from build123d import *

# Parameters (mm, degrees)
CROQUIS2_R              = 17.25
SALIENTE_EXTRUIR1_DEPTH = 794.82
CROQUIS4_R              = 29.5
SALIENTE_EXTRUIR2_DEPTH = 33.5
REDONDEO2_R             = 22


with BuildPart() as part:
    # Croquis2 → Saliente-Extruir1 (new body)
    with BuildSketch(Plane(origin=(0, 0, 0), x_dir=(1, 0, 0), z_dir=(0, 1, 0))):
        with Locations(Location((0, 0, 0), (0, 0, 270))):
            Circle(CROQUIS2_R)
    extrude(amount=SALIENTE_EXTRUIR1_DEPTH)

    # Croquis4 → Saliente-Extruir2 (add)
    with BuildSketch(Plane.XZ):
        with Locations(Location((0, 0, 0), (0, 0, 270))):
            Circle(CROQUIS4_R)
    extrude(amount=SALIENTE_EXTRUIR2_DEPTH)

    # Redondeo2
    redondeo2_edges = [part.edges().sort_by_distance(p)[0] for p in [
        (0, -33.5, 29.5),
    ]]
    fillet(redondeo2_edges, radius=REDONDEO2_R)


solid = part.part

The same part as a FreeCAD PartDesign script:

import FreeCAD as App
import Part
import Sketcher


def edges_at(feature, points):
    """Names of the edges that pass closest to the given points."""
    edges = feature.Shape.Edges
    near = lambda p: min(range(len(edges)), key=lambda i: edges[i].distToShape(Part.Vertex(*p))[0])
    return sorted({f"Edge{near(p) + 1}" for p in points})

doc = App.newDocument("Part")
body = doc.addObject("PartDesign::Body", "Body")

sketch1 = body.newObject("Sketcher::SketchObject", "Sketch")
sketch1.AttachmentSupport = (doc.getObject("XZ_Plane"), [""])
sketch1.MapMode = "FlatFace"
sketch1.addGeometry(Part.Circle(App.Vector(0, 0, 0), App.Vector(0, 0, 1), 17), False)
sketch1.addConstraint([
    Sketcher.Constraint("Coincident", 0, 3, -1, 1),
    Sketcher.Constraint("Diameter", 0, 34.5),
])
pad1 = body.newObject("PartDesign::Pad", "Pad")
pad1.Profile = sketch1
pad1.Length = 794.82
pad1.Reversed = True

sketch2 = body.newObject("Sketcher::SketchObject", "Sketch001")
sketch2.AttachmentSupport = (doc.getObject("XZ_Plane"), [""])
sketch2.MapMode = "FlatFace"
sketch2.addGeometry(Part.Circle(App.Vector(0, 0, 0), App.Vector(0, 0, 1), 30), False)
sketch2.addConstraint([
    Sketcher.Constraint("Coincident", 0, 3, -1, 1),
    Sketcher.Constraint("Diameter", 0, 59.0),
])
pad2 = body.newObject("PartDesign::Pad", "Pad001")
pad2.Profile = sketch2
pad2.Length = 33.5
doc.recompute()

fillet = body.newObject("PartDesign::Fillet", "Fillet")
fillet.Base = (pad2, edges_at(pad2, [(0, -33.5, 29.5)]))
fillet.Radius = 22

doc.recompute()
